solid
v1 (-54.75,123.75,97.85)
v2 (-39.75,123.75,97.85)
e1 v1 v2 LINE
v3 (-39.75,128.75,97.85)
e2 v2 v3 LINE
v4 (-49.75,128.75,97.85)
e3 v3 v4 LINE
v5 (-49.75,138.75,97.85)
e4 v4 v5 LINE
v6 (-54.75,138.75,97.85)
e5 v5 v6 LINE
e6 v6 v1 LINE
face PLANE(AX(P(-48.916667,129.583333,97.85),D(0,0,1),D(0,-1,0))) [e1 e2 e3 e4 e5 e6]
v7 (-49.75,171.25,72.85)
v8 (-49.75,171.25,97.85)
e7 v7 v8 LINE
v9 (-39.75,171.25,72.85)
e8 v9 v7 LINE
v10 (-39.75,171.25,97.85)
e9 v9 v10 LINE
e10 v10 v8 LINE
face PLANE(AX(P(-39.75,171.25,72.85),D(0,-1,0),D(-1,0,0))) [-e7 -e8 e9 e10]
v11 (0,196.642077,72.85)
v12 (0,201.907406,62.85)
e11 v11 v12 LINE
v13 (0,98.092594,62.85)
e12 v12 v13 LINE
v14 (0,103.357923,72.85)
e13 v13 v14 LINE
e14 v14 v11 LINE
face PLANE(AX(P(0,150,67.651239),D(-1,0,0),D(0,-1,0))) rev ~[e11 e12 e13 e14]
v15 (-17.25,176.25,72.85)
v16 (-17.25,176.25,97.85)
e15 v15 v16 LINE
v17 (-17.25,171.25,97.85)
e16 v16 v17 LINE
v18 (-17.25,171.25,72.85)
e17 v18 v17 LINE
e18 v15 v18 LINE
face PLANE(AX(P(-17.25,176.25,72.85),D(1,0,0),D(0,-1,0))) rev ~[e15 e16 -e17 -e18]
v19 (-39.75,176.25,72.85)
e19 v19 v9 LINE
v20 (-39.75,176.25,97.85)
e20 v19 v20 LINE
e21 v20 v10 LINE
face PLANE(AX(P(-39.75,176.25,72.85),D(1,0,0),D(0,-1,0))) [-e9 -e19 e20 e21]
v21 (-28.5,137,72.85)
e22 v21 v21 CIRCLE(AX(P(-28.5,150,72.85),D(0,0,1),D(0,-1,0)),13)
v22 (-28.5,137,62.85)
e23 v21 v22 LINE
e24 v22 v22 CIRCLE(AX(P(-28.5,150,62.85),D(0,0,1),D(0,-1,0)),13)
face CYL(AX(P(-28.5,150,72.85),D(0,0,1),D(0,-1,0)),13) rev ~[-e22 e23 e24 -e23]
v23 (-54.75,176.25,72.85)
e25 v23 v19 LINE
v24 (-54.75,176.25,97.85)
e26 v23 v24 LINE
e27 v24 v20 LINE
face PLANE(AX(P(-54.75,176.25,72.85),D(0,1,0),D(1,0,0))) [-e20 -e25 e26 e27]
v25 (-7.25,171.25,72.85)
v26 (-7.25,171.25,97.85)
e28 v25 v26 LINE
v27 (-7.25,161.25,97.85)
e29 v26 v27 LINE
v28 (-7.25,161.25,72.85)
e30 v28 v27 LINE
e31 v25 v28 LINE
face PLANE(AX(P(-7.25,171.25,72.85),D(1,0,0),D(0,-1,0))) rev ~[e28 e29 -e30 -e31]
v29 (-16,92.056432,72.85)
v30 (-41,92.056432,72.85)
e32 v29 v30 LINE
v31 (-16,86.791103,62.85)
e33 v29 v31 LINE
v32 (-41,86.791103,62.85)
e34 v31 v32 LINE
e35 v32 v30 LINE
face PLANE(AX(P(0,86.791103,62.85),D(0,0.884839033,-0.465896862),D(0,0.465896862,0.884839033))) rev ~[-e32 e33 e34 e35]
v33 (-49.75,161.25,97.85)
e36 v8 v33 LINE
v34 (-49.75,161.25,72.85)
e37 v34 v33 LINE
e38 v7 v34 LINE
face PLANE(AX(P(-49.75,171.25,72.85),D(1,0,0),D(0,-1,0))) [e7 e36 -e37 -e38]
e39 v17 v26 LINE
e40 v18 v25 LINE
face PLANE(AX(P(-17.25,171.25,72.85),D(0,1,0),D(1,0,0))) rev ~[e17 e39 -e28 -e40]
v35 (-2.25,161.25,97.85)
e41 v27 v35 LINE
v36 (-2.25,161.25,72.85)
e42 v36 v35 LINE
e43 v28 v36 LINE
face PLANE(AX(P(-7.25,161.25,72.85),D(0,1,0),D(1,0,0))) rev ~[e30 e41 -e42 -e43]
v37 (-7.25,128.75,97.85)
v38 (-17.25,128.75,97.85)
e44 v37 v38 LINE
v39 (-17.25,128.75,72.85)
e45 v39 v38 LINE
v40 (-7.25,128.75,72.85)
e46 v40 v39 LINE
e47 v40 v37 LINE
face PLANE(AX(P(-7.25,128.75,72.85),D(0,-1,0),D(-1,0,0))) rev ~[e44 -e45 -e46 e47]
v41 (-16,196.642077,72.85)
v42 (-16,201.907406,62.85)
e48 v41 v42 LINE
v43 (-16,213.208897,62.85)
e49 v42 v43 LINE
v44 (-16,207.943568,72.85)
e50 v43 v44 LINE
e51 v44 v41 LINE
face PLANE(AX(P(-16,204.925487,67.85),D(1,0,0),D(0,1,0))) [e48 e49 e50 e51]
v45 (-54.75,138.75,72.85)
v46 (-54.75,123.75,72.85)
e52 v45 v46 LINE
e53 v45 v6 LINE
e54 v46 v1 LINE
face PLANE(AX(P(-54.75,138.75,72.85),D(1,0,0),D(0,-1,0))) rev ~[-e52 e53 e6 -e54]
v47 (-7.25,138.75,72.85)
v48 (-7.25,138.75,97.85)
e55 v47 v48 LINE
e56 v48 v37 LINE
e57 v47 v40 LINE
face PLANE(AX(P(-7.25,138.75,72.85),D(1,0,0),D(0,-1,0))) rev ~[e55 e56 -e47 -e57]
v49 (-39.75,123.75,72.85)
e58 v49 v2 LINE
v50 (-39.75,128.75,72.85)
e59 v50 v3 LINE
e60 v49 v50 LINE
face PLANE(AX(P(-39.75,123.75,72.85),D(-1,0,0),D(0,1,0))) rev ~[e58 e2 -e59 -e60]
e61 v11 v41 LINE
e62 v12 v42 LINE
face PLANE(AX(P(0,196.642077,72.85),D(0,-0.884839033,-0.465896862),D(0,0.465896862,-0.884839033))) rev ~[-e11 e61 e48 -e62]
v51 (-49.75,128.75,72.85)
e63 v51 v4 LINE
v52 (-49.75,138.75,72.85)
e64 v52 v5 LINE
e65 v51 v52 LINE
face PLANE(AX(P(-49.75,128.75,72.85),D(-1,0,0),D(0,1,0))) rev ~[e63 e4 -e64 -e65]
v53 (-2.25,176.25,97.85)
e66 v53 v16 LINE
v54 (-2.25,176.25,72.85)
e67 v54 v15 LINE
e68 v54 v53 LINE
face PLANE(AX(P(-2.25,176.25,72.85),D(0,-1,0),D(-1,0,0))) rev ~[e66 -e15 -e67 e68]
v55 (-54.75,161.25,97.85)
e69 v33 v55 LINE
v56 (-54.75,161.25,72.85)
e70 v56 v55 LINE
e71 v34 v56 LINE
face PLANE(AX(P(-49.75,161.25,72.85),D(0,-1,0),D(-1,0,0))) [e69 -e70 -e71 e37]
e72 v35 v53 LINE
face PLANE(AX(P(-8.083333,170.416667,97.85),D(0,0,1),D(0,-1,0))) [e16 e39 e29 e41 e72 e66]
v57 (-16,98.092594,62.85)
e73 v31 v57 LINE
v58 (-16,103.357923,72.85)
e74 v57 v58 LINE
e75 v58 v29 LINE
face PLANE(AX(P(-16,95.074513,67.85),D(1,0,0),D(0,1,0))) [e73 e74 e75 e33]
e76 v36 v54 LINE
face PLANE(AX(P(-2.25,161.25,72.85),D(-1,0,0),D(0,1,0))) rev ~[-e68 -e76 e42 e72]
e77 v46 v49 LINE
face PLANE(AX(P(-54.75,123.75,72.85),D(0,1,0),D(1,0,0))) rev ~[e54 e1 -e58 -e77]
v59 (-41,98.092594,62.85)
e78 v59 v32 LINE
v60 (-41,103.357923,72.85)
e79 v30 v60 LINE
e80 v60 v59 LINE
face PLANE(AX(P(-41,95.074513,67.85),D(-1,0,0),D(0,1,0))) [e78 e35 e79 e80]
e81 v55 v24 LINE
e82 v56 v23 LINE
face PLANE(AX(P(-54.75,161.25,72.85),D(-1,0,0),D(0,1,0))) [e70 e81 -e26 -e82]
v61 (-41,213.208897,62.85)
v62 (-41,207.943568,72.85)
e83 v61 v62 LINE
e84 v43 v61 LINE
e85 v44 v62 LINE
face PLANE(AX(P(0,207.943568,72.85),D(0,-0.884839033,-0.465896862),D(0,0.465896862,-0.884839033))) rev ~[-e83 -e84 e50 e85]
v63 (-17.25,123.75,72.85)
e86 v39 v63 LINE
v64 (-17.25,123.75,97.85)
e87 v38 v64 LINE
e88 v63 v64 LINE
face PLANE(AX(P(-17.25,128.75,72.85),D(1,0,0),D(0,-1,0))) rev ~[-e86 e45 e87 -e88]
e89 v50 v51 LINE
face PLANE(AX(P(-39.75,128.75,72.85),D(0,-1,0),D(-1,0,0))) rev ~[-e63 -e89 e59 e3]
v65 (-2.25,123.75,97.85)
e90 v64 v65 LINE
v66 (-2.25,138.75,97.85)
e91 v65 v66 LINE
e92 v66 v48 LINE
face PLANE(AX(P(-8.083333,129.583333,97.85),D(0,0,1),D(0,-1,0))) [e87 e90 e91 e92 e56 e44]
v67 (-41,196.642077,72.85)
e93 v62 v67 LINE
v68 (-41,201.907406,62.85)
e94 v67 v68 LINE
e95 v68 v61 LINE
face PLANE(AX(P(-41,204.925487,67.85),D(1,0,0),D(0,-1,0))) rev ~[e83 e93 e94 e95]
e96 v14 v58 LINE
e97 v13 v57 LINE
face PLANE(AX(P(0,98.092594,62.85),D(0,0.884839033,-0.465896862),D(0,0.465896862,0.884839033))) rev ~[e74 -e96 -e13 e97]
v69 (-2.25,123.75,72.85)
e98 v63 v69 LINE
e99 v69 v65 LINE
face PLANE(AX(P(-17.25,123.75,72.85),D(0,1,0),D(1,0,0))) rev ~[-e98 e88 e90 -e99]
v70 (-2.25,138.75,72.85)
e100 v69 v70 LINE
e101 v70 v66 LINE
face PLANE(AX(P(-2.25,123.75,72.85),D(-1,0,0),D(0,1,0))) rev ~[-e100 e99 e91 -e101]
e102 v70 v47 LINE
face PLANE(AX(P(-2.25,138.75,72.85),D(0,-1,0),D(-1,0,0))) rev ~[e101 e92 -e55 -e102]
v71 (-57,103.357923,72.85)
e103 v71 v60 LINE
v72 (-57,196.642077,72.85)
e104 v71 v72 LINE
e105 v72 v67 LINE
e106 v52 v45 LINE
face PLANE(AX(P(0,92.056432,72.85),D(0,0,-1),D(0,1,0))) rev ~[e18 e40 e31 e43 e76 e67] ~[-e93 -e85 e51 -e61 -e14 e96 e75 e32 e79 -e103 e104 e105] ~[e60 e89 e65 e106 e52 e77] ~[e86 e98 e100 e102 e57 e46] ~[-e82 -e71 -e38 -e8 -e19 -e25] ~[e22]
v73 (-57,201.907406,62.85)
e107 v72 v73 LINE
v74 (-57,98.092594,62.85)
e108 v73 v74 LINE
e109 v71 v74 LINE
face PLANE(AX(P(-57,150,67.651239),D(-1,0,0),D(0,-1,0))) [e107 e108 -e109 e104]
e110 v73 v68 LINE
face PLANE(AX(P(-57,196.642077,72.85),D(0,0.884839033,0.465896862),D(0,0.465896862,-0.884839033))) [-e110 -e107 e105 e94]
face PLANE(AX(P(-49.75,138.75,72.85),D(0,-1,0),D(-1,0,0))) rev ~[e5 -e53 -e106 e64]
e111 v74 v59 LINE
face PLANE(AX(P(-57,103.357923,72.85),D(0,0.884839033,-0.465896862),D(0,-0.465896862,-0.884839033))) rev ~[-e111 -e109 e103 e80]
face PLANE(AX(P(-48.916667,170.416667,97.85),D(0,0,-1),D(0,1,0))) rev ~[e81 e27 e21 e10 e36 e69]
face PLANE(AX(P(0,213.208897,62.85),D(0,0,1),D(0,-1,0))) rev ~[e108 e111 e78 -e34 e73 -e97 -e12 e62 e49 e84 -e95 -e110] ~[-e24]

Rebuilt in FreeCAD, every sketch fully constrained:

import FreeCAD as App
import Part
import Sketcher
Q = App.Units.Quantity


def add_polygon(sketch, points):
    """Adds a closed chain of lines whose ends are joined by coincident constraints."""
    first, n = sketch.GeometryCount, len(points)
    for a, b in zip(points, points[1:] + points[:1]):
        sketch.addGeometry(Part.LineSegment(App.Vector(*a, 0), App.Vector(*b, 0)), False)
    for i in range(n):
        sketch.addConstraint(Sketcher.Constraint("Coincident", first + i, 2, first + (i + 1) % n, 1))

doc = App.newDocument("Part")
body = doc.addObject("PartDesign::Body", "Body")

# Sketch on YZ plane
sketch1 = body.newObject("Sketcher::SketchObject", "Sketch")
sketch1.AttachmentSupport = (doc.getObject("YZ_Plane"), [""])
sketch1.MapMode = "FlatFace"
add_polygon(sketch1, [(207.943568, 72.85), (92.056432, 72.85), (86.791103, 62.85), (213.208897, 62.85)])  # lines 0-3
sketch1.addConstraint([
    Sketcher.Constraint("Horizontal", 0),
    Sketcher.Constraint("Horizontal", 2),
    Sketcher.Constraint("Equal", 1, 3),
    Sketcher.Constraint("DistanceY", 1, 2, 0, 2, Q("10 mm")),
    Sketcher.Constraint("DistanceY", -1, 1, 0, 2, Q("72.85 mm")),
    Sketcher.Constraint("Distance", 1, Q("11.301491 mm")),
    Sketcher.Constraint("DistanceX", 0, 2, 0, 1, Q("115.887136 mm")),
    Sketcher.Constraint("DistanceX", -1, 1, 0, 2, Q("92.056432 mm")),
])
pad1 = body.newObject("PartDesign::Pad", "Pad")
pad1.Profile = sketch1
pad1.Length = 57
pad1.Reversed = True

# Sketch on YZ plane
sketch2 = body.newObject("Sketcher::SketchObject", "Sketch001")
sketch2.AttachmentSupport = (doc.getObject("YZ_Plane"), [""])
sketch2.MapMode = "FlatFace"
add_polygon(sketch2, [(86.791103, 62.85), (98.092594, 62.85), (103.357923, 72.85), (92.056432, 72.85)])  # lines 0-3
add_polygon(sketch2, [(207.943568, 72.85), (196.642077, 72.85), (201.907406, 62.85), (213.208897, 62.85)])  # lines 4-7
sketch2.addConstraint([
    Sketcher.Constraint("Horizontal", 0),
    Sketcher.Constraint("Horizontal", 2),
    Sketcher.Constraint("Horizontal", 4),
    Sketcher.Constraint("Horizontal", 6),
    Sketcher.Constraint("Parallel", 1, 3),
    Sketcher.Constraint("Parallel", 5, 7),
    Sketcher.Constraint("Horizontal", 2, 2, 4, 2),
    Sketcher.Constraint("Horizontal", 3, 2, 5, 2),
    Sketcher.Constraint("Equal", 2, 4),
    Sketcher.Constraint("Equal", 3, 5),
    Sketcher.Constraint("DistanceY", 0, 2, 1, 2, Q("10 mm")),
    Sketcher.Constraint("DistanceY", -1, 1, 0, 2, Q("62.85 mm")),
    Sketcher.Constraint("DistanceX", 0, 1, 0, 2, Q("11.301491 mm")),
    Sketcher.Constraint("Distance", 1, Q("11.301491 mm")),
    Sketcher.Constraint("DistanceX", -1, 1, 2, 2, Q("92.056432 mm")),
    Sketcher.Constraint("DistanceX", -1, 1, 7, 2, Q("207.943568 mm")),
])
pocket1 = body.newObject("PartDesign::Pocket", "Pocket")
pocket1.Profile = sketch2
pocket1.Length = 16

# Sketch on YZ plane
sketch3 = body.newObject("Sketcher::SketchObject", "Sketch002")
sketch3.AttachmentSupport = (doc.getObject("YZ_Plane"), [""])
sketch3.MapMode = "FlatFace"
sketch3.AttachmentOffset = App.Placement(App.Vector(0, 0, -57), App.Rotation())
add_polygon(sketch3, [(86.791103, 62.85), (92.056432, 72.85), (103.357923, 72.85), (98.092594, 62.85)])  # lines 0-3
add_polygon(sketch3, [(213.208897, 62.85), (201.907406, 62.85), (196.642077, 72.85), (207.943568, 72.85)])  # lines 4-7
sketch3.addConstraint([
    Sketcher.Constraint("Horizontal", 1),
    Sketcher.Constraint("Horizontal", 3),
    Sketcher.Constraint("Horizontal", 4),
    Sketcher.Constraint("Horizontal", 6),
    Sketcher.Constraint("Parallel", 0, 2),
    Sketcher.Constraint("Parallel", 5, 7),
    Sketcher.Constraint("Horizontal", 3, 2, 4, 2),
    Sketcher.Constraint("Horizontal", 1, 2, 5, 2),
    Sketcher.Constraint("Equal", 3, 4),
    Sketcher.Constraint("Equal", 2, 5),
    Sketcher.Constraint("DistanceY", 2, 2, 1, 2, Q("10 mm")),
    Sketcher.Constraint("DistanceY", -1, 1, 0, 2, Q("72.85 mm")),
    Sketcher.Constraint("DistanceX", 1, 1, 1, 2, Q("11.301491 mm")),
    Sketcher.Constraint("Distance", 0, Q("11.301491 mm")),
    Sketcher.Constraint("DistanceX", -1, 1, 0, 2, Q("92.056432 mm")),
    Sketcher.Constraint("DistanceX", -1, 1, 6, 2, Q("207.943568 mm")),
])
pocket2 = body.newObject("PartDesign::Pocket", "Pocket001")
pocket2.Profile = sketch3
pocket2.Length = 16
pocket2.Reversed = True

# Sketch on XY plane
sketch4 = body.newObject("Sketcher::SketchObject", "Sketch003")
sketch4.AttachmentSupport = (doc.getObject("XY_Plane"), [""])
sketch4.MapMode = "FlatFace"
sketch4.AttachmentOffset = App.Placement(App.Vector(0, 0, 72.85), App.Rotation())
sketch4.addGeometry(Part.Circle(App.Vector(-28.5, 150, 0), App.Vector(0, 0, 1), 13), False)
sketch4.addConstraint([
    Sketcher.Constraint("Diameter", 0, Q("26 mm")),
    Sketcher.Constraint("DistanceY", -1, 1, 0, 3, Q("150 mm")),
    Sketcher.Constraint("DistanceX", 0, 3, -1, 1, Q("28.5 mm")),
])
pocket3 = body.newObject("PartDesign::Pocket", "Pocket002")
pocket3.Profile = sketch4
pocket3.Type = "ThroughAll"

# Sketch on XY plane
sketch5 = body.newObject("Sketcher::SketchObject", "Sketch004")
sketch5.AttachmentSupport = (doc.getObject("XY_Plane"), [""])
sketch5.MapMode = "FlatFace"
sketch5.AttachmentOffset = App.Placement(App.Vector(0, 0, 72.85), App.Rotation())
add_polygon(sketch5, [(-2.25, 176.25), (-17.25, 176.25), (-17.25, 171.25), (-7.25, 171.25), (-7.25, 161.25), (-2.25, 161.25)])  # lines 0-5
add_polygon(sketch5, [(-7.25, 128.75), (-17.25, 128.75), (-17.25, 123.75), (-2.25, 123.75), (-2.25, 138.75), (-7.25, 138.75)])  # lines 6-11
add_polygon(sketch5, [(-54.75, 138.75), (-54.75, 123.75), (-39.75, 123.75), (-39.75, 128.75), (-49.75, 128.75), (-49.75, 138.75)])  # lines 12-17
add_polygon(sketch5, [(-49.75, 161.25), (-49.75, 171.25), (-39.75, 171.25), (-39.75, 176.25), (-54.75, 176.25), (-54.75, 161.25)])  # lines 18-23
sketch5.addConstraint([
    Sketcher.Constraint("Horizontal", 0),
    Sketcher.Constraint("Vertical", 1),
    Sketcher.Constraint("Horizontal", 2),
    Sketcher.Constraint("Vertical", 3),
    Sketcher.Constraint("Horizontal", 4),
    Sketcher.Constraint("Vertical", 5),
    Sketcher.Constraint("Horizontal", 6),
    Sketcher.Constraint("Vertical", 7),
    Sketcher.Constraint("Horizontal", 8),
    Sketcher.Constraint("Vertical", 9),
    Sketcher.Constraint("Horizontal", 10),
    Sketcher.Constraint("Vertical", 11),
    Sketcher.Constraint("Vertical", 12),
    Sketcher.Constraint("Horizontal", 13),
    Sketcher.Constraint("Vertical", 14),
    Sketcher.Constraint("Horizontal", 15),
    Sketcher.Constraint("Vertical", 16),
    Sketcher.Constraint("Horizontal", 17),
    Sketcher.Constraint("Vertical", 18),
    Sketcher.Constraint("Horizontal", 19),
    Sketcher.Constraint("Vertical", 20),
    Sketcher.Constraint("Horizontal", 21),
    Sketcher.Constraint("Vertical", 22),
    Sketcher.Constraint("Horizontal", 23),
    Sketcher.Constraint("Horizontal", 8, 2, 12, 2),
    Sketcher.Constraint("Horizontal", 11, 2, 14, 2),
    Sketcher.Constraint("Horizontal", 10, 2, 16, 2),
    Sketcher.Constraint("Horizontal", 2, 2, 18, 2),
    Sketcher.Constraint("Horizontal", 5, 2, 20, 2),
    Sketcher.Constraint("Horizontal", 4, 2, 22, 2),
    Sketcher.Constraint("Vertical", 1, 2, 6, 2),
    Sketcher.Constraint("Vertical", 5, 2, 8, 2),
    Sketcher.Constraint("Vertical", 3, 2, 10, 2),
    Sketcher.Constraint("Vertical", 16, 2, 18, 2),
    Sketcher.Constraint("Vertical", 14, 2, 19, 2),
    Sketcher.Constraint("Vertical", 17, 2, 21, 2),
    Sketcher.Constraint("Equal", 8, 13),
    Sketcher.Constraint("Equal", 6, 15),
    Sketcher.Constraint("Equal", 23, 1),
    Sketcher.Constraint("Equal", 19, 3),
    Sketcher.Constraint("Equal", 1, 7),
    Sketcher.Constraint("Equal", 5, 9),
    Sketcher.Constraint("DistanceX", 0, 2, 0, 1, Q("15 mm")),
    Sketcher.Constraint("DistanceX", 2, 1, 2, 2, Q("10 mm")),
    Sketcher.Constraint("DistanceY", 6, 2, 3, 2, Q("32.5 mm")),
    Sketcher.Constraint("DistanceX", 12, 2, 7, 2, Q("37.5 mm")),
    Sketcher.Constraint("DistanceX", 0, 2, -1, 1, Q("17.25 mm")),
    Sketcher.Constraint("DistanceY", -1, 1, 0, 2, Q("176.25 mm")),
])
pad2 = body.newObject("PartDesign::Pad", "Pad001")
pad2.Profile = sketch5
pad2.Length = 25

doc.recompute()
